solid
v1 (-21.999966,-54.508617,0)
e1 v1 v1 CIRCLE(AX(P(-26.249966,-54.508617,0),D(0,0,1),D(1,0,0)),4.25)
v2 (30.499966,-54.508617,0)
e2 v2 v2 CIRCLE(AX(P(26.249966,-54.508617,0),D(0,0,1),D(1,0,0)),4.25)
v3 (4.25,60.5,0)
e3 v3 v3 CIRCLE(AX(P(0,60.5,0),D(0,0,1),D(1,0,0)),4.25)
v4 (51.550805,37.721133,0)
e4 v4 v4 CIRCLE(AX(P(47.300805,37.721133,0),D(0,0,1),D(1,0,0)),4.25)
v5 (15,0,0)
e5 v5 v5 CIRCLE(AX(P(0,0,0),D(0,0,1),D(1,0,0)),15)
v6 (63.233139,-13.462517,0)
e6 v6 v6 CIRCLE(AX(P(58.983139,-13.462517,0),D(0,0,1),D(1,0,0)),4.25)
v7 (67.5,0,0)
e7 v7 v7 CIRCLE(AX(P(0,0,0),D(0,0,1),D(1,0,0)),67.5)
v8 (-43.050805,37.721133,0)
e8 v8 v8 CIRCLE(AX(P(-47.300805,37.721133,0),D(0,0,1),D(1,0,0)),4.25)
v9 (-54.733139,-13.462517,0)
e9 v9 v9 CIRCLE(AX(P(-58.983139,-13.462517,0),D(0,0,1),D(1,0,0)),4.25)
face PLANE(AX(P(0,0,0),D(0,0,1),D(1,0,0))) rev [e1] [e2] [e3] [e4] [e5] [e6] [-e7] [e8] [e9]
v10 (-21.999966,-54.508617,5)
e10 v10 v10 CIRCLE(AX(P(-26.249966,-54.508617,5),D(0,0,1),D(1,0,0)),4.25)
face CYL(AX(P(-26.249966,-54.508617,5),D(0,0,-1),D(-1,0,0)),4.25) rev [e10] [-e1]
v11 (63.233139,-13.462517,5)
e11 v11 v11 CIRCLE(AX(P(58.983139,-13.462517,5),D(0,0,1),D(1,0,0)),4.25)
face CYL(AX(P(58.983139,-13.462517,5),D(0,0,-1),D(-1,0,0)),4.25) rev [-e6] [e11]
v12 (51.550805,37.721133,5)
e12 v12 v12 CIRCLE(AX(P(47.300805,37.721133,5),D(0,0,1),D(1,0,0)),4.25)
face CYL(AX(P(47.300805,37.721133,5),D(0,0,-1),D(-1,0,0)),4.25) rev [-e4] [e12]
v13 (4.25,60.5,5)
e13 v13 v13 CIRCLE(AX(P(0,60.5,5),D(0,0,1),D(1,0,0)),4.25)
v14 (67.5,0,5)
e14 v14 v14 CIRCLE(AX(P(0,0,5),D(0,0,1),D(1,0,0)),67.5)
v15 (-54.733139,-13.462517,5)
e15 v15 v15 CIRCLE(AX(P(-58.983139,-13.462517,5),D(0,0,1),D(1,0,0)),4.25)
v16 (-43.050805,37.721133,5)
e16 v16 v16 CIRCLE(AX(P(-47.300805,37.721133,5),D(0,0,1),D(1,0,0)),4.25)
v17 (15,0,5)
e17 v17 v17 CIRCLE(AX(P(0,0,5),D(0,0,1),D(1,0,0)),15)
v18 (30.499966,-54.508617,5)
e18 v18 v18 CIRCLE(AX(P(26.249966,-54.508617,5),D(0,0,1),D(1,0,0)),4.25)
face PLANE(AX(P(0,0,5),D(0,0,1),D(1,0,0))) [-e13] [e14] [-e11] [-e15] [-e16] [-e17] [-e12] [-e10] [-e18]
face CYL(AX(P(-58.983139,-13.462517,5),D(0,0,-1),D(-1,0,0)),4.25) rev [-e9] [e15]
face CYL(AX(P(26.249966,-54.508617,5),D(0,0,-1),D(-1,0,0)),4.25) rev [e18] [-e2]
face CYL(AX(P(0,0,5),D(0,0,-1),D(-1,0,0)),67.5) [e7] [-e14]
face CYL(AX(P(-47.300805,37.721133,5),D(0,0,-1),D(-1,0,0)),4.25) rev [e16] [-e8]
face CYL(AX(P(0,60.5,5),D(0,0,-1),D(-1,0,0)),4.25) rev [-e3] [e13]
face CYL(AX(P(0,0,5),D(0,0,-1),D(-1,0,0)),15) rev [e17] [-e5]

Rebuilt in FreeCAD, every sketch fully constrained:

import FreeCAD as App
import Part
import Sketcher
Q = App.Units.Quantity

doc = App.newDocument("Part")
body = doc.addObject("PartDesign::Body", "Body")

# Sketch on XY plane
sketch1 = body.newObject("Sketcher::SketchObject", "Sketch")
sketch1.AttachmentSupport = (doc.getObject("XY_Plane"), [""])
sketch1.MapMode = "FlatFace"
sketch1.addGeometry(Part.Circle(App.Vector(0, 0, 0), App.Vector(0, 0, 1), 67.5), False)
sketch1.addGeometry(Part.Circle(App.Vector(-26.2, -54.5, 0), App.Vector(0, 0, 1), 4.2), False)
sketch1.addGeometry(Part.Circle(App.Vector(-59, -13.5, 0), App.Vector(0, 0, 1), 4.2), False)
sketch1.addGeometry(Part.Circle(App.Vector(26.2, -54.5, 0), App.Vector(0, 0, 1), 4.2), False)
sketch1.addGeometry(Part.Circle(App.Vector(0, 0, 0), App.Vector(0, 0, 1), 15), False)
sketch1.addGeometry(Part.Circle(App.Vector(59, -13.5, 0), App.Vector(0, 0, 1), 4.2), False)
sketch1.addGeometry(Part.Circle(App.Vector(-47.3, 37.7, 0), App.Vector(0, 0, 1), 4.2), False)
sketch1.addGeometry(Part.Circle(App.Vector(0, 60.5, 0), App.Vector(0, 0, 1), 4.2), False)
sketch1.addGeometry(Part.Circle(App.Vector(47.3, 37.7, 0), App.Vector(0, 0, 1), 4.2), False)
sketch1.addConstraint(Sketcher.Constraint("Coincident", 0, 3, -1, 1))
sketch1.addConstraint(Sketcher.Constraint("Coincident", 4, 3, -1, 1))
sketch1.addConstraint(Sketcher.Constraint("Equal", 1, 2))
sketch1.addConstraint(Sketcher.Constraint("Equal", 2, 3))
sketch1.addConstraint(Sketcher.Constraint("Equal", 3, 5))
sketch1.addConstraint(Sketcher.Constraint("Equal", 5, 6))
sketch1.addConstraint(Sketcher.Constraint("Equal", 6, 7))
sketch1.addConstraint(Sketcher.Constraint("Equal", 7, 8))
sketch1.addConstraint(Sketcher.Constraint("Symmetric", 1, 3, 3, 3, -2))
sketch1.addConstraint(Sketcher.Constraint("Symmetric", 2, 3, 5, 3, -2))
sketch1.addConstraint(Sketcher.Constraint("Symmetric", 6, 3, 8, 3, -2))
sketch1.addConstraint(Sketcher.Constraint("PointOnObject", 7, 3, -2))
sketch1.addConstraint(Sketcher.Constraint("Diameter", 0, Q("135 mm")))
sketch1.addConstraint(Sketcher.Constraint("Diameter", 4, Q("30 mm")))
sketch1.addConstraint(Sketcher.Constraint("Diameter", 1, Q("8.5 mm")))
sketch1.addConstraint(Sketcher.Constraint("DistanceY", -1, 1, 7, 3, Q("60.5 mm")))
sketch1.addConstraint(Sketcher.Constraint("DistanceY", 1, 3, 2, 3, Q("41.0461 mm")))
sketch1.addConstraint(Sketcher.Constraint("DistanceX", 2, 3, -1, 1, Q("58.983139 mm")))
sketch1.addConstraint(Sketcher.Constraint("DistanceY", 2, 3, 6, 3, Q("51.18365 mm")))
sketch1.addConstraint(Sketcher.Constraint("DistanceX", 6, 3, 1, 3, Q("21.050838 mm")))
sketch1.addConstraint(Sketcher.Constraint("DistanceX", 1, 3, -1, 1, Q("26.249966 mm")))
sketch1.addConstraint(Sketcher.Constraint("DistanceY", 1, 3, -1, 1, Q("54.508617 mm")))
pad1 = body.newObject("PartDesign::Pad", "Pad")
pad1.Profile = sketch1
pad1.Length = 5

doc.recompute()
